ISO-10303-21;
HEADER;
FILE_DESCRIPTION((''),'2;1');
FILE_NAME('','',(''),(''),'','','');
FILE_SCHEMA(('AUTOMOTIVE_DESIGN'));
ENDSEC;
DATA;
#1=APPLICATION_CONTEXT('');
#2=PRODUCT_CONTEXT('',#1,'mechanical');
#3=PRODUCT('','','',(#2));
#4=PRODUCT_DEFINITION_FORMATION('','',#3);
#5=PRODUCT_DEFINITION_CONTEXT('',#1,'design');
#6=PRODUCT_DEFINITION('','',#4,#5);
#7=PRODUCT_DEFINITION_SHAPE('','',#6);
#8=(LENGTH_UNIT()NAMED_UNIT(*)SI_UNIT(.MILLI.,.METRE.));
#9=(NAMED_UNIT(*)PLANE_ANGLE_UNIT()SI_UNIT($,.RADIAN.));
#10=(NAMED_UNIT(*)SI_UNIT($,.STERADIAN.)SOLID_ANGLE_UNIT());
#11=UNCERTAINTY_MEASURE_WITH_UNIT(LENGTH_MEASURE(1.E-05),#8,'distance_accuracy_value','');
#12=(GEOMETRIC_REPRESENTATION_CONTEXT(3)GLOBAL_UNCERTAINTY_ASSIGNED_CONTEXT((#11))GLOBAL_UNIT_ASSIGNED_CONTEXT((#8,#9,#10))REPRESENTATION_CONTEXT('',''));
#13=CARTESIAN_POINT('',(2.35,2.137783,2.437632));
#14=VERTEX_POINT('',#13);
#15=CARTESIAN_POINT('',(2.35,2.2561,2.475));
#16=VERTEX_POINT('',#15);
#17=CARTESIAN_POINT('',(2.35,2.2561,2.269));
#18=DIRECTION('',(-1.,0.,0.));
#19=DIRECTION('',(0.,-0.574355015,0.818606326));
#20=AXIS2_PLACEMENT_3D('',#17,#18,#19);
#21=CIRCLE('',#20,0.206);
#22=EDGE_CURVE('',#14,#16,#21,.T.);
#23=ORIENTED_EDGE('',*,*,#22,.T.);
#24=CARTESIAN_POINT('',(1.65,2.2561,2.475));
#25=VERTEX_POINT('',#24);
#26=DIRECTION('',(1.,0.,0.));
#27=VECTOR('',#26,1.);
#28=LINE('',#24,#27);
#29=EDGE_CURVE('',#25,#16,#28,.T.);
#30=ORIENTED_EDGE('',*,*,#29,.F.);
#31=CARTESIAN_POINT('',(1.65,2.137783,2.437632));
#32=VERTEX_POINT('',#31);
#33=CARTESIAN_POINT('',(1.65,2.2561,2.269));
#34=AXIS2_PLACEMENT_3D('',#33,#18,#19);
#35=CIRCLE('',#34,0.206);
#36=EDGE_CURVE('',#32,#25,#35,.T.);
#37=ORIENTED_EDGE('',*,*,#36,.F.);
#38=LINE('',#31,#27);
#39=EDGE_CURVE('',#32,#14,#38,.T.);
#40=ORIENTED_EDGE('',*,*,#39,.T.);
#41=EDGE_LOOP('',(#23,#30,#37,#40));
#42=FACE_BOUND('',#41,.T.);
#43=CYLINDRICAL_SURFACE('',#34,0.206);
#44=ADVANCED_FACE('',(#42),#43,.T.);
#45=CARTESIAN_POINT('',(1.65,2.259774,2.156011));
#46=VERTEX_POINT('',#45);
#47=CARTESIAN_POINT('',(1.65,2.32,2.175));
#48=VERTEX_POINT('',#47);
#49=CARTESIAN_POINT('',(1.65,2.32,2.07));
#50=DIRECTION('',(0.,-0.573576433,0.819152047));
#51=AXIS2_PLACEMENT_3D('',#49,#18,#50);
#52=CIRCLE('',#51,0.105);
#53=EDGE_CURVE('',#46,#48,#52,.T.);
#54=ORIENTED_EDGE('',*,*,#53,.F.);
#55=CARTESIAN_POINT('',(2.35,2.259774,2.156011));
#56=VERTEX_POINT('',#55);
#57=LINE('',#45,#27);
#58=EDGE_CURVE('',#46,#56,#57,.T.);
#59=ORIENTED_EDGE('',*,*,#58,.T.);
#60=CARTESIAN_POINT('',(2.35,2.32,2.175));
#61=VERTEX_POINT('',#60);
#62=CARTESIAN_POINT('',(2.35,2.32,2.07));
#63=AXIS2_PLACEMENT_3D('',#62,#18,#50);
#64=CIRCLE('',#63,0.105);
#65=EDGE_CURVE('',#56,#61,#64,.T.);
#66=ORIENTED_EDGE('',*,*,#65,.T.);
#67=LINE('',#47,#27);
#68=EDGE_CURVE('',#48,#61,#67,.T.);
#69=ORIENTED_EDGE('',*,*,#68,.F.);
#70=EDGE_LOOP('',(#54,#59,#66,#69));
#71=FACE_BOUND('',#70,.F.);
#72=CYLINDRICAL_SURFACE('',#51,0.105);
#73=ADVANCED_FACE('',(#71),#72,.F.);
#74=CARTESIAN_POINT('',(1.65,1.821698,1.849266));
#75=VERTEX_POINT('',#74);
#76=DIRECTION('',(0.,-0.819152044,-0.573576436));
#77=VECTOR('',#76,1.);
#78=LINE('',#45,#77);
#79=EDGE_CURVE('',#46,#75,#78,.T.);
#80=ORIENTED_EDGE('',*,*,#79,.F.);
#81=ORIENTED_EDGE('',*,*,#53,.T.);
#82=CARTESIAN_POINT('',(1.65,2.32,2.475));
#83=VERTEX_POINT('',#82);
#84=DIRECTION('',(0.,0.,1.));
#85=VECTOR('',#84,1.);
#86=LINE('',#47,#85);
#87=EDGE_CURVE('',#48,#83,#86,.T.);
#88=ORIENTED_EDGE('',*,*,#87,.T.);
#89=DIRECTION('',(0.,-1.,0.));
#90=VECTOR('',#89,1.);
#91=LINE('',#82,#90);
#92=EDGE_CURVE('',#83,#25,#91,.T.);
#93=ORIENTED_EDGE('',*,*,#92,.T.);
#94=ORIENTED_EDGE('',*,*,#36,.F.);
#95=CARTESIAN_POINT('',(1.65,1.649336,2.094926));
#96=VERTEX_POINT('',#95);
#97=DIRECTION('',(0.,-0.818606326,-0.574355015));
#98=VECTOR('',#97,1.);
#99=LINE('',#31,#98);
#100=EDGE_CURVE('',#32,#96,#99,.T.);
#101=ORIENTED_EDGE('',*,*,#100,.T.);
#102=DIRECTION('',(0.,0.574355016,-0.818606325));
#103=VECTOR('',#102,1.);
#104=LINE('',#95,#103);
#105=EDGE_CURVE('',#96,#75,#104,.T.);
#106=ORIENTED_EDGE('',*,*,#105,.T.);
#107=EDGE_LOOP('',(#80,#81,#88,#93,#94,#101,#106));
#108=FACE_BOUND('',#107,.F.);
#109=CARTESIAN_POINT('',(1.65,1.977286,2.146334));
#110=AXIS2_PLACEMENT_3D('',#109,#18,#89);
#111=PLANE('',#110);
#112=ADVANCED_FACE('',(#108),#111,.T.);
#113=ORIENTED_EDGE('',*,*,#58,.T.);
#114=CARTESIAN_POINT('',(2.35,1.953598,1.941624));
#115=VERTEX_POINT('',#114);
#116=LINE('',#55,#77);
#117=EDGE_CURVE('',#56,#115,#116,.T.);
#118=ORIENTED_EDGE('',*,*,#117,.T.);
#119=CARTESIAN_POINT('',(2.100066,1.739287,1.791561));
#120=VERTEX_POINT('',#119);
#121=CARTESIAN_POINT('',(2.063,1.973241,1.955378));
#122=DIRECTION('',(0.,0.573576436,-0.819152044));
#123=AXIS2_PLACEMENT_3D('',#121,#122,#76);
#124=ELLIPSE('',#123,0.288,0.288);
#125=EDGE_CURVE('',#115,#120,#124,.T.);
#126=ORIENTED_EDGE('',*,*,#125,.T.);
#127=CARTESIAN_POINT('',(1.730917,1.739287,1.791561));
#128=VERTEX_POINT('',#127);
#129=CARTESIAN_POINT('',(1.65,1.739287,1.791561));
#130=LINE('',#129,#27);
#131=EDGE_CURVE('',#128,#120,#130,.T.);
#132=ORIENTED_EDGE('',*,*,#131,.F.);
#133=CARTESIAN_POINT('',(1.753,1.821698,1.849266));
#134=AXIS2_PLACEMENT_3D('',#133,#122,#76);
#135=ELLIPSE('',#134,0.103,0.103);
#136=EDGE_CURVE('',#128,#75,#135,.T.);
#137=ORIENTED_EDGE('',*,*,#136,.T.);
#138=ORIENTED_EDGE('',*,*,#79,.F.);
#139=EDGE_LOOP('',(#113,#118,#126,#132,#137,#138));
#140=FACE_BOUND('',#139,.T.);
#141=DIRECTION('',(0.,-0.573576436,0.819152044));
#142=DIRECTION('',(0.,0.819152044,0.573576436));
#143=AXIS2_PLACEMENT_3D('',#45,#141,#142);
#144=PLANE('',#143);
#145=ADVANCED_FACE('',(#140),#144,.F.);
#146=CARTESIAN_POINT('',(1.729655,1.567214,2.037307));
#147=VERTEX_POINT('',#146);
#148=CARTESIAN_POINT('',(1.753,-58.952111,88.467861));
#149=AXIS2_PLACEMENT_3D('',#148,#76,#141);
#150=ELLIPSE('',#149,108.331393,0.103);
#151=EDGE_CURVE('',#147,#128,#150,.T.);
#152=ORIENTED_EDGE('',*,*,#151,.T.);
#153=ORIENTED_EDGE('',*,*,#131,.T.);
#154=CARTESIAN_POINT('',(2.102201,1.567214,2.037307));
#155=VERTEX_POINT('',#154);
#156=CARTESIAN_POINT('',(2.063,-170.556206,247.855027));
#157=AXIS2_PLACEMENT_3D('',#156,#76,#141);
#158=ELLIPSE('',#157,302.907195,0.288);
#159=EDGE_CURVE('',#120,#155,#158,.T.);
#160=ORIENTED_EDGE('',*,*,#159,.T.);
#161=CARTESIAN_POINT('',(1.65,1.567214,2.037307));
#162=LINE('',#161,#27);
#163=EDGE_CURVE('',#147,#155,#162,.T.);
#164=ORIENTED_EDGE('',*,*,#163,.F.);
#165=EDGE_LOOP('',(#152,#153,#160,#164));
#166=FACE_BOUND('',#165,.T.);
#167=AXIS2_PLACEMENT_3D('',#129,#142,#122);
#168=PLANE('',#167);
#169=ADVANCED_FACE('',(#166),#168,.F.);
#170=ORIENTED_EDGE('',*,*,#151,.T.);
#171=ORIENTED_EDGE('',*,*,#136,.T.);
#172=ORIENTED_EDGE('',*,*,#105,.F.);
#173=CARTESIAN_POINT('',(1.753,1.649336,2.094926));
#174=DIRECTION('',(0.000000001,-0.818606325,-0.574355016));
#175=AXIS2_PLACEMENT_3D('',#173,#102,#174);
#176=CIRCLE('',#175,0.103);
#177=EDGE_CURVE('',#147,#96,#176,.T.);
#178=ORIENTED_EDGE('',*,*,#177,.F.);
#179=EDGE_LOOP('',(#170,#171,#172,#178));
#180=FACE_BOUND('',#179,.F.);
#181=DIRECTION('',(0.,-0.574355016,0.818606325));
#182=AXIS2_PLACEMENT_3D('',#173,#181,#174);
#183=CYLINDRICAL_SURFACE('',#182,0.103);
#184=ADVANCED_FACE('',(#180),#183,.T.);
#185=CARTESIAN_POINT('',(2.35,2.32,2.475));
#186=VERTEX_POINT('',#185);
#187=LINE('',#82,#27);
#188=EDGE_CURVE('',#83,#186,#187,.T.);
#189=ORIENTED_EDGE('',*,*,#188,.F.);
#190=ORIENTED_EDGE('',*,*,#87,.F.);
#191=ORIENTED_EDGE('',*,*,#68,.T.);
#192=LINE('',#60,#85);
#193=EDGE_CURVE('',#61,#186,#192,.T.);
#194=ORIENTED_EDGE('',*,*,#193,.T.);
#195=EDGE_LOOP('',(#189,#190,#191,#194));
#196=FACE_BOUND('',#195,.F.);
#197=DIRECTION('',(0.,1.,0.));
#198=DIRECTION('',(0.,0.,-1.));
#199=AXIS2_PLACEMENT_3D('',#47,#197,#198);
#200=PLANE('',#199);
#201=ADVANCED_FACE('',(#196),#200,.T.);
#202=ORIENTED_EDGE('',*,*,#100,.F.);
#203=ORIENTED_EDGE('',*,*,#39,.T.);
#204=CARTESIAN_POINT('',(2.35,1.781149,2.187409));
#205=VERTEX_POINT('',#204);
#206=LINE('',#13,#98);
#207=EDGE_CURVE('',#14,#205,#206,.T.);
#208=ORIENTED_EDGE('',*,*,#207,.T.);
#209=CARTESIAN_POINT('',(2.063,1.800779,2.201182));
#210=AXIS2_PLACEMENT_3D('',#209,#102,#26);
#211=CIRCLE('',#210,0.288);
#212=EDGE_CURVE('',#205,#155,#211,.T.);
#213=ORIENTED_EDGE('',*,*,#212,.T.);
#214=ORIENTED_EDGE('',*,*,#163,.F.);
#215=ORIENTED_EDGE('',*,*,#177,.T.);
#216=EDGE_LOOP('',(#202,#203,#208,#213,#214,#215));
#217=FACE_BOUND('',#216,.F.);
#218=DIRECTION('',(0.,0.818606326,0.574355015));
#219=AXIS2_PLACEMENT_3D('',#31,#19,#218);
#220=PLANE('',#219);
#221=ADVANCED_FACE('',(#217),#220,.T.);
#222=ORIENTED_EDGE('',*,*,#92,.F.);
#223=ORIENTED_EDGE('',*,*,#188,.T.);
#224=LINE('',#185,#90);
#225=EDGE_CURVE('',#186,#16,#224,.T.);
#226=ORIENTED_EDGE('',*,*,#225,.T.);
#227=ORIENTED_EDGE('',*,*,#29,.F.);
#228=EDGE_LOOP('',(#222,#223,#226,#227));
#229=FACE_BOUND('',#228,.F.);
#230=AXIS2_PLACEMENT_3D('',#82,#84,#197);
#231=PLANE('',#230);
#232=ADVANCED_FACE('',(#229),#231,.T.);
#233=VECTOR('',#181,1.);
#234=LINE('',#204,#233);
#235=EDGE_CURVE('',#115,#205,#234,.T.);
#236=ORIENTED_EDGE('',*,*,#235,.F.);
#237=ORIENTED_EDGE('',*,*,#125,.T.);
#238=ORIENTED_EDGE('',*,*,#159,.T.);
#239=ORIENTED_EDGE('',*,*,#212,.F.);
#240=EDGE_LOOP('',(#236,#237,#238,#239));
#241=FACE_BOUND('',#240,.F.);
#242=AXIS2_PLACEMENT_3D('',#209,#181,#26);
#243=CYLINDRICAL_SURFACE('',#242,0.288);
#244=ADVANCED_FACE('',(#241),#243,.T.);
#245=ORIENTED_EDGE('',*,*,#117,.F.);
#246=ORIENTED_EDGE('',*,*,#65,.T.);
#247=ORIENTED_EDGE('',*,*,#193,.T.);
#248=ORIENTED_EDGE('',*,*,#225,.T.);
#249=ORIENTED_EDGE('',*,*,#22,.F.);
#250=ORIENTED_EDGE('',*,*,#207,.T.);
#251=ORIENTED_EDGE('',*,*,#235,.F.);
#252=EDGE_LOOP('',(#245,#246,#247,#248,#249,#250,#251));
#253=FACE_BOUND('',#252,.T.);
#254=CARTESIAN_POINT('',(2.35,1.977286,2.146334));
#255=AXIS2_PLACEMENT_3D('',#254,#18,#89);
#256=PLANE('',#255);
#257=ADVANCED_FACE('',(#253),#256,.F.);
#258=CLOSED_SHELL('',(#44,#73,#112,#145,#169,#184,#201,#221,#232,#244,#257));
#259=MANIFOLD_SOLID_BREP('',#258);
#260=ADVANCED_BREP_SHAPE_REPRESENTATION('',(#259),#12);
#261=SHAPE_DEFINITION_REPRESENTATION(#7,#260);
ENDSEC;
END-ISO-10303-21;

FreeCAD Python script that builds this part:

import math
import FreeCAD as App
import Part
import Sketcher
Q = App.Units.Quantity

doc = App.newDocument("Part")
body = doc.addObject("PartDesign::Body", "Body")

# Sketch on YZ plane
sketch1 = body.newObject("Sketcher::SketchObject", "Sketch")
sketch1.AttachmentSupport = (doc.getObject("YZ_Plane"), [""])
sketch1.MapMode = "FlatFace"
sketch1.AttachmentOffset = App.Placement(App.Vector(0, 0, 1.65), App.Rotation())
sketch1.addGeometry([
    Part.LineSegment(App.Vector(-2.32, 2.475, 0), App.Vector(-2.32, 2.175, 0)),  # 0
    Part.ArcOfCircle(Part.Circle(App.Vector(-2.32, 2.07, 0), App.Vector(0, 0, 1), 0.105), math.radians(55), math.radians(90)),  # 1
    Part.LineSegment(App.Vector(-2.259774, 2.156011, 0), App.Vector(-1.739287, 1.791561, 0)),  # 2
    Part.LineSegment(App.Vector(-1.739287, 1.791561, 0), App.Vector(-1.567214, 2.037307, 0)),  # 3
    Part.LineSegment(App.Vector(-1.567214, 2.037307, 0), App.Vector(-2.137783, 2.437632, 0)),  # 4
    Part.ArcOfCircle(Part.Circle(App.Vector(-2.2561, 2.269, 0), App.Vector(0, 0, 1), 0.206), math.radians(54.945524), math.radians(90)),  # 5
    Part.LineSegment(App.Vector(-2.2561, 2.475, 0), App.Vector(-2.32, 2.475, 0)),  # 6
], False)
sketch1.addConstraint([
    Sketcher.Constraint("Coincident", 0, 2, 1, 2),
    Sketcher.Constraint("Tangent", 1, 1, 2, 1),
    Sketcher.Constraint("Coincident", 2, 2, 3, 1),
    Sketcher.Constraint("Coincident", 3, 2, 4, 1),
    Sketcher.Constraint("Tangent", 4, 2, 5, 1),
    Sketcher.Constraint("Tangent", 5, 2, 6, 1),
    Sketcher.Constraint("Coincident", 6, 2, 0, 1),
    Sketcher.Constraint("Vertical", 0),
    Sketcher.Constraint("Horizontal", 6),
    Sketcher.Constraint("Perpendicular", 2, 3),
    Sketcher.Constraint("Vertical", 1, 3, 0, 2),
    Sketcher.Constraint("Angle", 2, Q("-35 deg")),
    Sketcher.Constraint("DistanceY", 0, 2, 0, 1, Q("0.3 mm")),
    Sketcher.Constraint("Radius", 1, Q("0.105 mm")),
    Sketcher.Constraint("Radius", 5, Q("0.206 mm")),
    Sketcher.Constraint("Distance", 3, Q("0.3 mm")),
    Sketcher.Constraint("DistanceX", 1, 3, -1, 1, Q("2.32 mm")),
    Sketcher.Constraint("DistanceY", -1, 1, 1, 3, Q("2.07 mm")),
    Sketcher.Constraint("Distance", 4, Q("0.697 mm")),
    Sketcher.Constraint("DistanceX", 6, 2, 6, 1, Q("0.0639 mm")),
])
pad1 = body.newObject("PartDesign::Pad", "Pad")
pad1.Profile = sketch1
pad1.Length = 0.7

# Sketch on an angled plane
sketch2 = body.newObject("Sketcher::SketchObject", "Sketch001")
sketch2.Placement = App.Placement(App.Vector(1.65, -2.136407, 2.436667), App.Rotation(App.Vector(0, -0.818606325, 0.574355016), App.Vector(1, 0, 0), App.Vector(0, 0.574355016, 0.818606325), "ZXY"))
sketch2.addGeometry([
    Part.ArcOfCircle(Part.Circle(App.Vector(-0.595, 0.103, 0), App.Vector(0, 0, 1), 0.103), math.radians(180), math.radians(270)),  # 0
    Part.LineSegment(App.Vector(-0.698, 0.103, 0), App.Vector(-0.698, 0.413, 0)),  # 1
    Part.ArcOfCircle(Part.Circle(App.Vector(-0.41, 0.413, 0), App.Vector(0, 0, 1), 0.288), math.radians(90), math.radians(180)),  # 2
    Part.LineSegment(App.Vector(-0.41, 0.701, 0), App.Vector(-0.748, 0.701, 0)),  # 3
    Part.LineSegment(App.Vector(-0.748, 0.701, 0), App.Vector(-0.748, 0, 0)),  # 4
    Part.LineSegment(App.Vector(-0.748, 0, 0), App.Vector(-0.595, 0, 0)),  # 5
], False)
sketch2.addConstraint([
    Sketcher.Constraint("Tangent", 0, 1, 1, 1),
    Sketcher.Constraint("Tangent", 1, 2, 2, 2),
    Sketcher.Constraint("Tangent", 2, 1, 3, 1),
    Sketcher.Constraint("Coincident", 3, 2, 4, 1),
    Sketcher.Constraint("Coincident", 4, 2, 5, 1),
    Sketcher.Constraint("Tangent", 5, 2, 0, 2),
    Sketcher.Constraint("Vertical", 1),
    Sketcher.Constraint("Horizontal", 3),
    Sketcher.Constraint("Vertical", 4),
    Sketcher.Constraint("Horizontal", 5),
    Sketcher.Constraint("PointOnObject", 4, 2, -1),
    Sketcher.Constraint("Radius", 0, Q("0.103 mm")),
    Sketcher.Constraint("Radius", 2, Q("0.288 mm")),
    Sketcher.Constraint("DistanceY", 1, 1, 1, 2, Q("0.31 mm")),
    Sketcher.Constraint("DistanceX", 3, 2, 3, 1, Q("0.338 mm")),
    Sketcher.Constraint("DistanceX", 2, 3, -1, 1, Q("0.41 mm")),
])
pocket1 = body.newObject("PartDesign::Pocket", "Pocket")
pocket1.Profile = sketch2
pocket1.Type = "ThroughAll"
body2 = doc.addObject("PartDesign::Body", "Body001")
doc.recompute()

mirroring = doc.addObject("Part::Mirroring", "Mirroring")
mirroring.Source = body
mirroring.Base = App.Vector(0, 0, 0)
mirroring.Normal = App.Vector(0, 1, 0)
body2.BaseFeature = mirroring
doc.recompute()
body.Visibility = False
mirroring.Visibility = False

doc.recompute()
